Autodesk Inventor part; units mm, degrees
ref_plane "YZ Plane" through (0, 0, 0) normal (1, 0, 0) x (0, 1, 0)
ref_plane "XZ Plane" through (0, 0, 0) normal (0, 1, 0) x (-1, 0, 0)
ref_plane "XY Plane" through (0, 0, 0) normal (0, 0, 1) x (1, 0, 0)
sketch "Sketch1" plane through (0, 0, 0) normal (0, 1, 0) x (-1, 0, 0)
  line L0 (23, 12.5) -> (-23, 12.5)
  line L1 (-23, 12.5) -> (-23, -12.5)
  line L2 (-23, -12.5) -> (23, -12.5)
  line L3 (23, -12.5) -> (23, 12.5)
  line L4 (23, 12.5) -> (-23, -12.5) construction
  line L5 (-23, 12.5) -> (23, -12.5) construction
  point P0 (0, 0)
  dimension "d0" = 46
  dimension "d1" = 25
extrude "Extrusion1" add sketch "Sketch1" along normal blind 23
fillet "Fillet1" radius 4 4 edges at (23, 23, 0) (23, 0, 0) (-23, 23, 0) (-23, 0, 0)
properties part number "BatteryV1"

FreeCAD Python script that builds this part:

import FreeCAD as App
import Part
import Sketcher


def edges_at(feature, points):
    """Names of the edges that pass closest to the given points."""
    edges = feature.Shape.Edges
    near = lambda p: min(range(len(edges)), key=lambda i: edges[i].distToShape(Part.Vertex(*p))[0])
    return sorted({f"Edge{near(p) + 1}" for p in points})

doc = App.newDocument("Part")
body = doc.addObject("PartDesign::Body", "Body")

# Sketch on XZ plane
sketch1 = body.newObject("Sketcher::SketchObject", "Sketch")
sketch1.AttachmentSupport = (doc.getObject("XZ_Plane"), [""])
sketch1.MapMode = "FlatFace"
sketch1.addGeometry([
    Part.LineSegment(App.Vector(-23, -12, 0), App.Vector(-23, 12, 0)),
    Part.LineSegment(App.Vector(-23, 12, 0), App.Vector(23, 12, 0)),
    Part.LineSegment(App.Vector(23, 12, 0), App.Vector(23, -12, 0)),
    Part.LineSegment(App.Vector(23, -12, 0), App.Vector(-23, -12, 0)),
], False)
sketch1.addConstraint([
    Sketcher.Constraint("Coincident", 0, 2, 1, 1),
    Sketcher.Constraint("Coincident", 1, 2, 2, 1),
    Sketcher.Constraint("Coincident", 2, 2, 3, 1),
    Sketcher.Constraint("Coincident", 3, 2, 0, 1),
    Sketcher.Constraint("Vertical", 0),
    Sketcher.Constraint("Horizontal", 1),
    Sketcher.Constraint("Vertical", 2),
    Sketcher.Constraint("Horizontal", 3),
    Sketcher.Constraint("Symmetric", 0, 2, 2, 2, -1, 1),
    Sketcher.Constraint("DistanceX", 1, 1, 1, 2, 46.0),
    Sketcher.Constraint("DistanceY", 0, 1, 0, 2, 25.0),
])
pad1 = body.newObject("PartDesign::Pad", "Pad")
pad1.Profile = sketch1
pad1.Length = 23
pad1.Reversed = True
doc.recompute()

fillet = body.newObject("PartDesign::Fillet", "Fillet")
fillet.Base = (pad1, edges_at(pad1, [
    (23, 23, 0),
    (23, 0, 0),
    (-23, 23, 0),
    (-23, 0, 0),
]))
fillet.Radius = 4

doc.recompute()
